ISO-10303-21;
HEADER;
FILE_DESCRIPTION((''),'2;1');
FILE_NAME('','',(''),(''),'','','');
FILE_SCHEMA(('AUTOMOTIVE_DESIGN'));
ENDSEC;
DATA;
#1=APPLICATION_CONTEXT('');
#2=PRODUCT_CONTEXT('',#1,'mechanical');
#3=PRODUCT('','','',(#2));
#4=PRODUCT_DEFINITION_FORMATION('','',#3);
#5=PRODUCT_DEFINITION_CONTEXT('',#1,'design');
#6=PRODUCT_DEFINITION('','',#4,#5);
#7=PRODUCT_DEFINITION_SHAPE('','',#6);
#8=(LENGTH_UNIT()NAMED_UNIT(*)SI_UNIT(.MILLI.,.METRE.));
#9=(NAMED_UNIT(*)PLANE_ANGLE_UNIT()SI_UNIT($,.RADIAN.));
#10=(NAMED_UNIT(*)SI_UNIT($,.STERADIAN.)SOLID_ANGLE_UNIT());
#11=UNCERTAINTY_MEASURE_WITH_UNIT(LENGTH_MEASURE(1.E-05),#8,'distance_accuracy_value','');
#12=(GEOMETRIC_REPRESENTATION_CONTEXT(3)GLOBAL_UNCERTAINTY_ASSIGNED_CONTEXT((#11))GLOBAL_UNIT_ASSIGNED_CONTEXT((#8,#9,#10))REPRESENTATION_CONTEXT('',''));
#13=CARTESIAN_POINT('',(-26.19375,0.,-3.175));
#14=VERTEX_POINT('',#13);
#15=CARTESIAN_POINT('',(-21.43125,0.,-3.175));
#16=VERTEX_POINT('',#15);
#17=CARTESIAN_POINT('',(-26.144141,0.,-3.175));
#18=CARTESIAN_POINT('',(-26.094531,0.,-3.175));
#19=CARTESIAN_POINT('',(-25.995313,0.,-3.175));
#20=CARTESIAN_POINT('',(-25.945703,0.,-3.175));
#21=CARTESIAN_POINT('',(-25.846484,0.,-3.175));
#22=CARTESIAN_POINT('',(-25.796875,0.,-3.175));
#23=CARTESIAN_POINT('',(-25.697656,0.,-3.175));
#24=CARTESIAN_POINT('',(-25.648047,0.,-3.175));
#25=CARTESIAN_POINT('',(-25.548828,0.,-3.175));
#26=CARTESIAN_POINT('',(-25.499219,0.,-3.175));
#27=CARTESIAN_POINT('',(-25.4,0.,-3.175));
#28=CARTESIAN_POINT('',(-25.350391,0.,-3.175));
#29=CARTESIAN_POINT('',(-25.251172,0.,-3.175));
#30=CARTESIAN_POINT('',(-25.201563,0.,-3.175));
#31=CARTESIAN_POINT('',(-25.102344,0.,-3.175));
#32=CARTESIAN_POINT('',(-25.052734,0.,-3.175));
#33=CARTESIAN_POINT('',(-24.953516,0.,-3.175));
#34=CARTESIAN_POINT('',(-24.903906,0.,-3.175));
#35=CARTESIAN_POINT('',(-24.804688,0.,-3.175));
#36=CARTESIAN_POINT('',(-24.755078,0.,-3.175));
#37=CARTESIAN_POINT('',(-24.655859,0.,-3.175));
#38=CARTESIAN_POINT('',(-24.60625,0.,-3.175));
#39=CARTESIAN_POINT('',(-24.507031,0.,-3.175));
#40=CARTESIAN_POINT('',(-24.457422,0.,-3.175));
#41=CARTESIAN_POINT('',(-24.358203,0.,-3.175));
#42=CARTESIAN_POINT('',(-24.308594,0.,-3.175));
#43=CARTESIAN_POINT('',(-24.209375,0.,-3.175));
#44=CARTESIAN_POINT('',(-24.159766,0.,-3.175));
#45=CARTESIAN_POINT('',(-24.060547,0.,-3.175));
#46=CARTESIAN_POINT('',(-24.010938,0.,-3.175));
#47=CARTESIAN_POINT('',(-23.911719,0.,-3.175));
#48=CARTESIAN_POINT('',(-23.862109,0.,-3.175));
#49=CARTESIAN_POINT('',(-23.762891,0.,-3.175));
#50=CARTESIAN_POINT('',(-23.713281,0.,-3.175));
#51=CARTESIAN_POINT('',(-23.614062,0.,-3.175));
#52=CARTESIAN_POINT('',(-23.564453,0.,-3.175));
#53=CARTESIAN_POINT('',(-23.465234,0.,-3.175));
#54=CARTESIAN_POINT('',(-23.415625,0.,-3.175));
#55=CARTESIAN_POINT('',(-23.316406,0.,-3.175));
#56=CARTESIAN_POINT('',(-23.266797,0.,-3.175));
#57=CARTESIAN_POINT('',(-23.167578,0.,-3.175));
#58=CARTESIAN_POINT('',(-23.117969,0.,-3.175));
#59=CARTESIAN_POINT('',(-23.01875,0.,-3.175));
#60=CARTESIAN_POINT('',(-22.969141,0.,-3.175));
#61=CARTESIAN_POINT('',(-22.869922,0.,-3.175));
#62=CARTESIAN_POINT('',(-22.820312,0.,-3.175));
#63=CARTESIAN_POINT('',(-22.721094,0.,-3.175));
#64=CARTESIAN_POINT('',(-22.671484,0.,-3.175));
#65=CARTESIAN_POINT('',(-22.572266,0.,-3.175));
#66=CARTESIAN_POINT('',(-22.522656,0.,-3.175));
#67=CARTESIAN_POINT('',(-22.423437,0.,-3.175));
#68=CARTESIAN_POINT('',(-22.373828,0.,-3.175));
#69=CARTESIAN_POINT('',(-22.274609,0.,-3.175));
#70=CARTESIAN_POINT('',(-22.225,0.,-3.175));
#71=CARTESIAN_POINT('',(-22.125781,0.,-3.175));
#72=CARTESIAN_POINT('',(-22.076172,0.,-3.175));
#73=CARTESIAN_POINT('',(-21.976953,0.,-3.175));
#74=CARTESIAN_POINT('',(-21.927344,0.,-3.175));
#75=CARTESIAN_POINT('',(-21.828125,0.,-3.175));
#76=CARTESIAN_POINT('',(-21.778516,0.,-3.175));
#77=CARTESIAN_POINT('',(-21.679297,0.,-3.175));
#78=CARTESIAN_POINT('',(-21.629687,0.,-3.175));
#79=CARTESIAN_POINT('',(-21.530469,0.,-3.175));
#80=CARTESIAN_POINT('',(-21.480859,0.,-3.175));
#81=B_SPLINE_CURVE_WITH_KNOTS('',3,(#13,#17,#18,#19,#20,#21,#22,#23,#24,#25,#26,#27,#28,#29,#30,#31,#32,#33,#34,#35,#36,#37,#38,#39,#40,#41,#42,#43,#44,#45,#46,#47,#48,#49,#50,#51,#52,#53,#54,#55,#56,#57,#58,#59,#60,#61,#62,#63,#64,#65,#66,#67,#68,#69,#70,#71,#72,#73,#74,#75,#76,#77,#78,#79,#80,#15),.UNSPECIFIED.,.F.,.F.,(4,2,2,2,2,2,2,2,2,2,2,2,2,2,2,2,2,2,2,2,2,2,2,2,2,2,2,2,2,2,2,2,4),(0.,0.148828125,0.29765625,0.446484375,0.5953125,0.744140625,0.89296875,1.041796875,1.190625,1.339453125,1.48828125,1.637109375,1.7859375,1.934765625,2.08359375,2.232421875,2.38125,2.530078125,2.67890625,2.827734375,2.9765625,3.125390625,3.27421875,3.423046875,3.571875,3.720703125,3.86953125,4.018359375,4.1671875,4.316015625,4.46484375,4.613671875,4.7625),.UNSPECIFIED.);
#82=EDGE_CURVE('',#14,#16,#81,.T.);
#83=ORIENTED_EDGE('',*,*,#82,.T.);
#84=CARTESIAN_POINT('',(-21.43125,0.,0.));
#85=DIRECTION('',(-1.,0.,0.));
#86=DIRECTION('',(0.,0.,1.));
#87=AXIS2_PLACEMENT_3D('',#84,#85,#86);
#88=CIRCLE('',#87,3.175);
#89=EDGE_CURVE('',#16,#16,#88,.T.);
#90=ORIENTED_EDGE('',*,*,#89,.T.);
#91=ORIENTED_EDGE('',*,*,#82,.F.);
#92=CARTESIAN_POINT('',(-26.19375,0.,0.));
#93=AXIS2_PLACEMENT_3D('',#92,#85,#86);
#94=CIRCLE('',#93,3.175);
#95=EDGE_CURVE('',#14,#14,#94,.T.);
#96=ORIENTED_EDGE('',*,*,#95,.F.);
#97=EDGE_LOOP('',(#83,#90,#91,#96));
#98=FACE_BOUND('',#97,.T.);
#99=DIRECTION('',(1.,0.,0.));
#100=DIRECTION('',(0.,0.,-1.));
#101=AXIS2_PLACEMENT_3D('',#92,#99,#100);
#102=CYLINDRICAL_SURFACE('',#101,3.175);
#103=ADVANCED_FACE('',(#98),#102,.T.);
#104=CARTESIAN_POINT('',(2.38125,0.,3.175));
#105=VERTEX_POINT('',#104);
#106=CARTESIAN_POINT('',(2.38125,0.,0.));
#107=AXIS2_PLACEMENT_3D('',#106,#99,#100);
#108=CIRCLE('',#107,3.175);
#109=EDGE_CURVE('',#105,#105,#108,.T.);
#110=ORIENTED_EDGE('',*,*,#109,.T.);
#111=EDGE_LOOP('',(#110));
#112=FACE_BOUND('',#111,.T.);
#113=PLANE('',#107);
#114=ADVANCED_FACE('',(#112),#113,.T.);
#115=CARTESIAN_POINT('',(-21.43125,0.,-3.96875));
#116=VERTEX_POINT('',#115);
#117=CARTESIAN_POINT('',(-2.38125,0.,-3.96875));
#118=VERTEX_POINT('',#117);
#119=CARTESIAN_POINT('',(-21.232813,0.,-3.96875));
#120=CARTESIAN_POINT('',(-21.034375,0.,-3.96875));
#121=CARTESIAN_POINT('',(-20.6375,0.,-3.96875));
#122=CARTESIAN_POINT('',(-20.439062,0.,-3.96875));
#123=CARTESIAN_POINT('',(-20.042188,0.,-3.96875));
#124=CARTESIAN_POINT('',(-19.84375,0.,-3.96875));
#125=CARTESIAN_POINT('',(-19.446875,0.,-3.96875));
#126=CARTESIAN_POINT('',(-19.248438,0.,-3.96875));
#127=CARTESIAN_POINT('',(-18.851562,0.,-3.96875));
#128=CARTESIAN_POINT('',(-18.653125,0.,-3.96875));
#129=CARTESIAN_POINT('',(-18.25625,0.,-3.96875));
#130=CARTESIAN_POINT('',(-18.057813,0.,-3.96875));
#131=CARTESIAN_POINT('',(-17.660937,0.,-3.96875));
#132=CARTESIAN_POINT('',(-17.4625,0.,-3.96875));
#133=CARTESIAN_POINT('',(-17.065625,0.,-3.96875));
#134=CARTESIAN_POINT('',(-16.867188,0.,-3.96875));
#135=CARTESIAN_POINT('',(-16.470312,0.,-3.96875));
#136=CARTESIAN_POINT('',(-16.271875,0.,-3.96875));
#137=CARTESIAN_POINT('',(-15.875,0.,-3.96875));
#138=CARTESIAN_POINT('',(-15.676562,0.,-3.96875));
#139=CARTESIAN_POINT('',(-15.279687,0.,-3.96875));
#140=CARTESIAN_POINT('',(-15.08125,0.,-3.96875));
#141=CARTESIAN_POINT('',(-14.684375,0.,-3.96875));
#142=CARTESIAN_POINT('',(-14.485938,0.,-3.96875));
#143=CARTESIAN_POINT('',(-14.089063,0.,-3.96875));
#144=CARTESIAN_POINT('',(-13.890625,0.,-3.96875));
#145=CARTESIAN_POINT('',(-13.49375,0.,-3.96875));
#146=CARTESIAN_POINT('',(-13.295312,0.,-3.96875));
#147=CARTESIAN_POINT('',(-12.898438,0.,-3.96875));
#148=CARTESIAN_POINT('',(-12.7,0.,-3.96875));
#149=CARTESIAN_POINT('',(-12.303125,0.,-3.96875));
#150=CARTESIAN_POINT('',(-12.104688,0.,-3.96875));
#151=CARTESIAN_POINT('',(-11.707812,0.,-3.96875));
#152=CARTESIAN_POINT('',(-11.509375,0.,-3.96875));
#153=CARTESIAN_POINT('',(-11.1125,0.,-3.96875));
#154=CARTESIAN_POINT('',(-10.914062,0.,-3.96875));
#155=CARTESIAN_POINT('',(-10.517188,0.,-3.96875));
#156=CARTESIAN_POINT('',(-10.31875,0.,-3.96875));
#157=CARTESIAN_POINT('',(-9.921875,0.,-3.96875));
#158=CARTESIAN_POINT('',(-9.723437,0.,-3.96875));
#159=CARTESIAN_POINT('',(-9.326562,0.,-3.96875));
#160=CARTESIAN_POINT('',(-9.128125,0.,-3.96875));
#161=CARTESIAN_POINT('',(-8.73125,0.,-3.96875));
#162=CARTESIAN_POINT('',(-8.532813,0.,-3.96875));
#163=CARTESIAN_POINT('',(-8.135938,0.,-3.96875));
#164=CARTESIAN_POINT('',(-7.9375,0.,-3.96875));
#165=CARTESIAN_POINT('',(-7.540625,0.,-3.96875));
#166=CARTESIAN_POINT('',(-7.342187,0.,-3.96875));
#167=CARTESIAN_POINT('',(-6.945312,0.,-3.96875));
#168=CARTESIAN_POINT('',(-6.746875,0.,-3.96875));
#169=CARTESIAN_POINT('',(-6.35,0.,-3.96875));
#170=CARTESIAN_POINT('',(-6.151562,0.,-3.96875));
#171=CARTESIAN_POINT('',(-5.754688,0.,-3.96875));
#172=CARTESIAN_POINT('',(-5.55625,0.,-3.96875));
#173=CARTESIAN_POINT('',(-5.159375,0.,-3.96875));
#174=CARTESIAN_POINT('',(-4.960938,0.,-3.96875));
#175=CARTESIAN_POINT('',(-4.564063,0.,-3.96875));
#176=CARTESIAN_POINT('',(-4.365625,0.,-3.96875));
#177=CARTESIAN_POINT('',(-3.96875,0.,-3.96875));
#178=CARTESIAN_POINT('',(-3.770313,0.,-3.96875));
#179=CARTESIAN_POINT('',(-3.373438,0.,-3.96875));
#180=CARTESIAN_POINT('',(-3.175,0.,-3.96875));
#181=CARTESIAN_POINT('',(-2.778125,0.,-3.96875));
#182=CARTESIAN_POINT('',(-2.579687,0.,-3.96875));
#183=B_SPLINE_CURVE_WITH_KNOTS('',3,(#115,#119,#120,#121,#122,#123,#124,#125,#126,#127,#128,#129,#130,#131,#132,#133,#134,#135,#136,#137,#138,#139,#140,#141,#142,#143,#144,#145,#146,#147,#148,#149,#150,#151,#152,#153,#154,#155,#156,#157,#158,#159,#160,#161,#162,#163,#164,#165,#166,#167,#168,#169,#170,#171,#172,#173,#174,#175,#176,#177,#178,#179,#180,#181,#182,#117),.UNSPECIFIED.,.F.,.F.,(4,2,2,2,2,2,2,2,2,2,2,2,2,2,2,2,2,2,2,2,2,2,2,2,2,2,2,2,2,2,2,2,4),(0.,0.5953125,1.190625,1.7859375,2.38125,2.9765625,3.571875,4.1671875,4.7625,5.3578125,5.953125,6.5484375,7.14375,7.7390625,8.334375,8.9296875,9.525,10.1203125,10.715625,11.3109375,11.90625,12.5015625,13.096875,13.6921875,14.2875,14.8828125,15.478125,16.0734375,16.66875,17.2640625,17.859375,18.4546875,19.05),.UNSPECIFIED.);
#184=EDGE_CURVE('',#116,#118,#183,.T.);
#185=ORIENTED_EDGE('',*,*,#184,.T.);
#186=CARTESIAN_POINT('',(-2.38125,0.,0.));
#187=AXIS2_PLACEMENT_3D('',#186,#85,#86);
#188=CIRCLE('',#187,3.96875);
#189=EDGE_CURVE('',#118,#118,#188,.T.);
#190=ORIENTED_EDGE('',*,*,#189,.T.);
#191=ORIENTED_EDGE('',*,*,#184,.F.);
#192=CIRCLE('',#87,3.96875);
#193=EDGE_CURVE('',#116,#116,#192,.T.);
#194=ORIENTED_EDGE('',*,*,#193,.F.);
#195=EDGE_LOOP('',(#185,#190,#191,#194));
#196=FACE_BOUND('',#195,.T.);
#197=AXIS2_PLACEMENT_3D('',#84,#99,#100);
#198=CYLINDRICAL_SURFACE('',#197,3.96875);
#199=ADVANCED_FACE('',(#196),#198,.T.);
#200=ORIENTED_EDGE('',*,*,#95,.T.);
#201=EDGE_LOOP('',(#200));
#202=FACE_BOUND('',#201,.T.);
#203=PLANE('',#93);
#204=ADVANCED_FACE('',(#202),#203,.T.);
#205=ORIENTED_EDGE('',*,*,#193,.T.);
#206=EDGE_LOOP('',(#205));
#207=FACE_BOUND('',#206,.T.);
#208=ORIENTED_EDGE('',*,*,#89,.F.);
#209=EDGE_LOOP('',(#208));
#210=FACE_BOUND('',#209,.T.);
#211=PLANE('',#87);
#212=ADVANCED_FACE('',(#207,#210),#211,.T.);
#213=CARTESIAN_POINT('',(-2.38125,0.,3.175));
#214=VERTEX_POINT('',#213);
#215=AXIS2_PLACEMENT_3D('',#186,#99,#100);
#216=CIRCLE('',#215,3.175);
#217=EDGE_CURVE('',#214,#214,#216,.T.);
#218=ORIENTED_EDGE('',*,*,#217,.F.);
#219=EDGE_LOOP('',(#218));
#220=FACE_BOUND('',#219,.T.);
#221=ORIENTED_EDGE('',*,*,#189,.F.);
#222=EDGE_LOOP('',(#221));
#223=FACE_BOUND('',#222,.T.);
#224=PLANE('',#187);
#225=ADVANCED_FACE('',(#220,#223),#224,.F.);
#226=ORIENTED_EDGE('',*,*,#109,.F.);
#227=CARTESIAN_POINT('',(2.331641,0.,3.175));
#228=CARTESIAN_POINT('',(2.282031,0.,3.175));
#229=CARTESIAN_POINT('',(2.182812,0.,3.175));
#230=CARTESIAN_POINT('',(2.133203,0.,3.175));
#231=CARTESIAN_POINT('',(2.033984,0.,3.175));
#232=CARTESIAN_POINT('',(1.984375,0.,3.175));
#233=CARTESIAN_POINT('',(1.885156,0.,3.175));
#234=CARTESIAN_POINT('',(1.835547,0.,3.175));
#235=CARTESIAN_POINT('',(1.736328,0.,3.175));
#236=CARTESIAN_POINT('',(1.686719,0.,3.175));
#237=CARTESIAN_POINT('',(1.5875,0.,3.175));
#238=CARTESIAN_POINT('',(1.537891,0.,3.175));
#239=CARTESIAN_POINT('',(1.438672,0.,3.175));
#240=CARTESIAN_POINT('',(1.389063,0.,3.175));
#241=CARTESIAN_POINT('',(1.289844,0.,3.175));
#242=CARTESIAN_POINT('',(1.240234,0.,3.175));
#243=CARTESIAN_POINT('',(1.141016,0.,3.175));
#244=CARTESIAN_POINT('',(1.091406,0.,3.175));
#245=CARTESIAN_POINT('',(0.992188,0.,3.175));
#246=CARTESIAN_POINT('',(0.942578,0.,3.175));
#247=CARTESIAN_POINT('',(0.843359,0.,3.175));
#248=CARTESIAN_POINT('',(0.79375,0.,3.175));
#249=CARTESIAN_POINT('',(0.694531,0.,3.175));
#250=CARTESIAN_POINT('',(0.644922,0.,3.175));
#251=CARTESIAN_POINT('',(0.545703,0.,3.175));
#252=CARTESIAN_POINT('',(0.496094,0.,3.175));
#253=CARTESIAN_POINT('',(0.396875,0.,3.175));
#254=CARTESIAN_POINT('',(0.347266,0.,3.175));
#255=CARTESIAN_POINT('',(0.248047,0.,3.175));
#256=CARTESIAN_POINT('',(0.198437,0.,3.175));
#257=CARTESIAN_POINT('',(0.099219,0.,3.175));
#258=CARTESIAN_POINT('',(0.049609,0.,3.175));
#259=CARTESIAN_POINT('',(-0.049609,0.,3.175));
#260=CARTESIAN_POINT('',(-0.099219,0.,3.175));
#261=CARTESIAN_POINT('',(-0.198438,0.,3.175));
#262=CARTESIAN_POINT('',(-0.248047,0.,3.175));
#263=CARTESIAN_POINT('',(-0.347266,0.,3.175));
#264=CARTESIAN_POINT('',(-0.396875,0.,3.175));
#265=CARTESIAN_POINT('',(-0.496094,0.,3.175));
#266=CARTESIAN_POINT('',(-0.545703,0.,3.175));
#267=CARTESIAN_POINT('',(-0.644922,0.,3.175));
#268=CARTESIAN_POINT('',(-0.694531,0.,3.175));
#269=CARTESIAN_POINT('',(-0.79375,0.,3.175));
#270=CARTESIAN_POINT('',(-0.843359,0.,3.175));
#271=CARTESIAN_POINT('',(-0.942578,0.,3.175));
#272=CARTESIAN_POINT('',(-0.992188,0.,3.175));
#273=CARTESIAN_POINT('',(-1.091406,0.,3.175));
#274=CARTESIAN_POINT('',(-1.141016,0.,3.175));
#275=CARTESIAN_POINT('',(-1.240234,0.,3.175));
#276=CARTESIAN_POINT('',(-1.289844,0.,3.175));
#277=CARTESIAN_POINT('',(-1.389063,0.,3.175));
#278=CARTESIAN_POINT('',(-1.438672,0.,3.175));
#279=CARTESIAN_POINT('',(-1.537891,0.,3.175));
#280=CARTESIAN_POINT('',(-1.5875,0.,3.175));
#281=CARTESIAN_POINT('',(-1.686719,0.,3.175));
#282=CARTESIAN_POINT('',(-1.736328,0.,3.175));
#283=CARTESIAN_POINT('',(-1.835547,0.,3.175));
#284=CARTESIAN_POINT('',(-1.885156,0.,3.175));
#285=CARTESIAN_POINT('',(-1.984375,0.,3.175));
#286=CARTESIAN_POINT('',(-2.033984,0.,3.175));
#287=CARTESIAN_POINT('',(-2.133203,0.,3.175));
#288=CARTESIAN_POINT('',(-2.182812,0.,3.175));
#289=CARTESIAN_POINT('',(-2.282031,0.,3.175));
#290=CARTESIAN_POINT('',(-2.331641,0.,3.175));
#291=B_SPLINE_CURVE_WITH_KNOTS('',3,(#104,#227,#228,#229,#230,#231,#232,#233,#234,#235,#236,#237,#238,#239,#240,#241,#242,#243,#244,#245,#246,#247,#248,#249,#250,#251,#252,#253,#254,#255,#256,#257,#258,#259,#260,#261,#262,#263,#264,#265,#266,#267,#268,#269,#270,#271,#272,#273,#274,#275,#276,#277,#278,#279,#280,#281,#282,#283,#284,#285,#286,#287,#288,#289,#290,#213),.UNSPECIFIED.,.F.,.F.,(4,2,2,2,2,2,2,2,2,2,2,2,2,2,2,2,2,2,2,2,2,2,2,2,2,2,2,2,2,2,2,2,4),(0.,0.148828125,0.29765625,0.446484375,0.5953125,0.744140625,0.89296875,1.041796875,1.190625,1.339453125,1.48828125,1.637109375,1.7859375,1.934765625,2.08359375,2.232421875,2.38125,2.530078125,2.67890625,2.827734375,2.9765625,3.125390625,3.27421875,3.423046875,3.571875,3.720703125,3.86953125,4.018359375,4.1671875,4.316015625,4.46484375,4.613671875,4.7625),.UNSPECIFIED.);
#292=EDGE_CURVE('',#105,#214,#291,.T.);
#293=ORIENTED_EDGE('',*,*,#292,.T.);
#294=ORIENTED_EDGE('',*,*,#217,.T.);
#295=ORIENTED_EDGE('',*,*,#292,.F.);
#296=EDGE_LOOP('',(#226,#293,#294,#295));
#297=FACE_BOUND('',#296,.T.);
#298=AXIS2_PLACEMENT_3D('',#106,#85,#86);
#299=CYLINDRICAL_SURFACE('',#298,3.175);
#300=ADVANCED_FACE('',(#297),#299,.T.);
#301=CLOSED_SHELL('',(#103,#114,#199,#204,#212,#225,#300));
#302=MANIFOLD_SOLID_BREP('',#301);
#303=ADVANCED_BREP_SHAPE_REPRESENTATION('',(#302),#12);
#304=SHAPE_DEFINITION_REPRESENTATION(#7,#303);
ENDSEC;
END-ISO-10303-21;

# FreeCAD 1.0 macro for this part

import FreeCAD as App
import Part
import Sketcher
from FreeCAD import Vector
Q = App.Units.Quantity

doc = App.newDocument("Part")
body = doc.addObject("PartDesign::Body", "Body")

sketch1 = body.newObject("Sketcher::SketchObject", "Sketch")
sketch1.AttachmentSupport = (doc.getObject("YZ_Plane"), [""])
sketch1.MapMode = "FlatFace"
sketch1.addGeometry(Part.Circle(Vector(0, 0, 0), Vector(0, 0, 1), 3.2), False)
sketch1.addConstraint(Sketcher.Constraint("Coincident", 0, 3, -1, 1))
sketch1.addConstraint(Sketcher.Constraint("Diameter", 0, Q("0.25 in")))
pad1 = body.newObject("PartDesign::Pad", "Pad")
pad1.Profile = sketch1
pad1.Length = Q("0.1875 in")
pad1.Midplane = True

sketch2 = body.newObject("Sketcher::SketchObject", "Sketch001")
sketch2.AttachmentSupport = (doc.getObject("YZ_Plane"), [""])
sketch2.MapMode = "FlatFace"
sketch2.AttachmentOffset = App.Placement(Vector(0, 0, -0.09375 * 25.4), App.Rotation())
sketch2.addGeometry(Part.Circle(Vector(0, 0, 0), Vector(0, 0, 1), 4), False)
sketch2.addConstraint(Sketcher.Constraint("Coincident", 0, 3, -1, 1))
sketch2.addConstraint(Sketcher.Constraint("Diameter", 0, Q("0.3125 in")))
pad2 = body.newObject("PartDesign::Pad", "Pad001")
pad2.Profile = sketch2
pad2.Length = Q("0.75 in")
pad2.Reversed = True

sketch3 = body.newObject("Sketcher::SketchObject", "Sketch002")
sketch3.AttachmentSupport = (doc.getObject("YZ_Plane"), [""])
sketch3.MapMode = "FlatFace"
sketch3.AttachmentOffset = App.Placement(Vector(0, 0, -0.84375 * 25.4), App.Rotation())
sketch3.addGeometry(Part.Circle(Vector(0, 0, 0), Vector(0, 0, 1), 3.2), False)
sketch3.addConstraint(Sketcher.Constraint("Coincident", 0, 3, -1, 1))
sketch3.addConstraint(Sketcher.Constraint("Diameter", 0, Q("0.25 in")))
pad3 = body.newObject("PartDesign::Pad", "Pad002")
pad3.Profile = sketch3
pad3.Length = Q("0.1875 in")
pad3.Reversed = True

doc.recompute()
